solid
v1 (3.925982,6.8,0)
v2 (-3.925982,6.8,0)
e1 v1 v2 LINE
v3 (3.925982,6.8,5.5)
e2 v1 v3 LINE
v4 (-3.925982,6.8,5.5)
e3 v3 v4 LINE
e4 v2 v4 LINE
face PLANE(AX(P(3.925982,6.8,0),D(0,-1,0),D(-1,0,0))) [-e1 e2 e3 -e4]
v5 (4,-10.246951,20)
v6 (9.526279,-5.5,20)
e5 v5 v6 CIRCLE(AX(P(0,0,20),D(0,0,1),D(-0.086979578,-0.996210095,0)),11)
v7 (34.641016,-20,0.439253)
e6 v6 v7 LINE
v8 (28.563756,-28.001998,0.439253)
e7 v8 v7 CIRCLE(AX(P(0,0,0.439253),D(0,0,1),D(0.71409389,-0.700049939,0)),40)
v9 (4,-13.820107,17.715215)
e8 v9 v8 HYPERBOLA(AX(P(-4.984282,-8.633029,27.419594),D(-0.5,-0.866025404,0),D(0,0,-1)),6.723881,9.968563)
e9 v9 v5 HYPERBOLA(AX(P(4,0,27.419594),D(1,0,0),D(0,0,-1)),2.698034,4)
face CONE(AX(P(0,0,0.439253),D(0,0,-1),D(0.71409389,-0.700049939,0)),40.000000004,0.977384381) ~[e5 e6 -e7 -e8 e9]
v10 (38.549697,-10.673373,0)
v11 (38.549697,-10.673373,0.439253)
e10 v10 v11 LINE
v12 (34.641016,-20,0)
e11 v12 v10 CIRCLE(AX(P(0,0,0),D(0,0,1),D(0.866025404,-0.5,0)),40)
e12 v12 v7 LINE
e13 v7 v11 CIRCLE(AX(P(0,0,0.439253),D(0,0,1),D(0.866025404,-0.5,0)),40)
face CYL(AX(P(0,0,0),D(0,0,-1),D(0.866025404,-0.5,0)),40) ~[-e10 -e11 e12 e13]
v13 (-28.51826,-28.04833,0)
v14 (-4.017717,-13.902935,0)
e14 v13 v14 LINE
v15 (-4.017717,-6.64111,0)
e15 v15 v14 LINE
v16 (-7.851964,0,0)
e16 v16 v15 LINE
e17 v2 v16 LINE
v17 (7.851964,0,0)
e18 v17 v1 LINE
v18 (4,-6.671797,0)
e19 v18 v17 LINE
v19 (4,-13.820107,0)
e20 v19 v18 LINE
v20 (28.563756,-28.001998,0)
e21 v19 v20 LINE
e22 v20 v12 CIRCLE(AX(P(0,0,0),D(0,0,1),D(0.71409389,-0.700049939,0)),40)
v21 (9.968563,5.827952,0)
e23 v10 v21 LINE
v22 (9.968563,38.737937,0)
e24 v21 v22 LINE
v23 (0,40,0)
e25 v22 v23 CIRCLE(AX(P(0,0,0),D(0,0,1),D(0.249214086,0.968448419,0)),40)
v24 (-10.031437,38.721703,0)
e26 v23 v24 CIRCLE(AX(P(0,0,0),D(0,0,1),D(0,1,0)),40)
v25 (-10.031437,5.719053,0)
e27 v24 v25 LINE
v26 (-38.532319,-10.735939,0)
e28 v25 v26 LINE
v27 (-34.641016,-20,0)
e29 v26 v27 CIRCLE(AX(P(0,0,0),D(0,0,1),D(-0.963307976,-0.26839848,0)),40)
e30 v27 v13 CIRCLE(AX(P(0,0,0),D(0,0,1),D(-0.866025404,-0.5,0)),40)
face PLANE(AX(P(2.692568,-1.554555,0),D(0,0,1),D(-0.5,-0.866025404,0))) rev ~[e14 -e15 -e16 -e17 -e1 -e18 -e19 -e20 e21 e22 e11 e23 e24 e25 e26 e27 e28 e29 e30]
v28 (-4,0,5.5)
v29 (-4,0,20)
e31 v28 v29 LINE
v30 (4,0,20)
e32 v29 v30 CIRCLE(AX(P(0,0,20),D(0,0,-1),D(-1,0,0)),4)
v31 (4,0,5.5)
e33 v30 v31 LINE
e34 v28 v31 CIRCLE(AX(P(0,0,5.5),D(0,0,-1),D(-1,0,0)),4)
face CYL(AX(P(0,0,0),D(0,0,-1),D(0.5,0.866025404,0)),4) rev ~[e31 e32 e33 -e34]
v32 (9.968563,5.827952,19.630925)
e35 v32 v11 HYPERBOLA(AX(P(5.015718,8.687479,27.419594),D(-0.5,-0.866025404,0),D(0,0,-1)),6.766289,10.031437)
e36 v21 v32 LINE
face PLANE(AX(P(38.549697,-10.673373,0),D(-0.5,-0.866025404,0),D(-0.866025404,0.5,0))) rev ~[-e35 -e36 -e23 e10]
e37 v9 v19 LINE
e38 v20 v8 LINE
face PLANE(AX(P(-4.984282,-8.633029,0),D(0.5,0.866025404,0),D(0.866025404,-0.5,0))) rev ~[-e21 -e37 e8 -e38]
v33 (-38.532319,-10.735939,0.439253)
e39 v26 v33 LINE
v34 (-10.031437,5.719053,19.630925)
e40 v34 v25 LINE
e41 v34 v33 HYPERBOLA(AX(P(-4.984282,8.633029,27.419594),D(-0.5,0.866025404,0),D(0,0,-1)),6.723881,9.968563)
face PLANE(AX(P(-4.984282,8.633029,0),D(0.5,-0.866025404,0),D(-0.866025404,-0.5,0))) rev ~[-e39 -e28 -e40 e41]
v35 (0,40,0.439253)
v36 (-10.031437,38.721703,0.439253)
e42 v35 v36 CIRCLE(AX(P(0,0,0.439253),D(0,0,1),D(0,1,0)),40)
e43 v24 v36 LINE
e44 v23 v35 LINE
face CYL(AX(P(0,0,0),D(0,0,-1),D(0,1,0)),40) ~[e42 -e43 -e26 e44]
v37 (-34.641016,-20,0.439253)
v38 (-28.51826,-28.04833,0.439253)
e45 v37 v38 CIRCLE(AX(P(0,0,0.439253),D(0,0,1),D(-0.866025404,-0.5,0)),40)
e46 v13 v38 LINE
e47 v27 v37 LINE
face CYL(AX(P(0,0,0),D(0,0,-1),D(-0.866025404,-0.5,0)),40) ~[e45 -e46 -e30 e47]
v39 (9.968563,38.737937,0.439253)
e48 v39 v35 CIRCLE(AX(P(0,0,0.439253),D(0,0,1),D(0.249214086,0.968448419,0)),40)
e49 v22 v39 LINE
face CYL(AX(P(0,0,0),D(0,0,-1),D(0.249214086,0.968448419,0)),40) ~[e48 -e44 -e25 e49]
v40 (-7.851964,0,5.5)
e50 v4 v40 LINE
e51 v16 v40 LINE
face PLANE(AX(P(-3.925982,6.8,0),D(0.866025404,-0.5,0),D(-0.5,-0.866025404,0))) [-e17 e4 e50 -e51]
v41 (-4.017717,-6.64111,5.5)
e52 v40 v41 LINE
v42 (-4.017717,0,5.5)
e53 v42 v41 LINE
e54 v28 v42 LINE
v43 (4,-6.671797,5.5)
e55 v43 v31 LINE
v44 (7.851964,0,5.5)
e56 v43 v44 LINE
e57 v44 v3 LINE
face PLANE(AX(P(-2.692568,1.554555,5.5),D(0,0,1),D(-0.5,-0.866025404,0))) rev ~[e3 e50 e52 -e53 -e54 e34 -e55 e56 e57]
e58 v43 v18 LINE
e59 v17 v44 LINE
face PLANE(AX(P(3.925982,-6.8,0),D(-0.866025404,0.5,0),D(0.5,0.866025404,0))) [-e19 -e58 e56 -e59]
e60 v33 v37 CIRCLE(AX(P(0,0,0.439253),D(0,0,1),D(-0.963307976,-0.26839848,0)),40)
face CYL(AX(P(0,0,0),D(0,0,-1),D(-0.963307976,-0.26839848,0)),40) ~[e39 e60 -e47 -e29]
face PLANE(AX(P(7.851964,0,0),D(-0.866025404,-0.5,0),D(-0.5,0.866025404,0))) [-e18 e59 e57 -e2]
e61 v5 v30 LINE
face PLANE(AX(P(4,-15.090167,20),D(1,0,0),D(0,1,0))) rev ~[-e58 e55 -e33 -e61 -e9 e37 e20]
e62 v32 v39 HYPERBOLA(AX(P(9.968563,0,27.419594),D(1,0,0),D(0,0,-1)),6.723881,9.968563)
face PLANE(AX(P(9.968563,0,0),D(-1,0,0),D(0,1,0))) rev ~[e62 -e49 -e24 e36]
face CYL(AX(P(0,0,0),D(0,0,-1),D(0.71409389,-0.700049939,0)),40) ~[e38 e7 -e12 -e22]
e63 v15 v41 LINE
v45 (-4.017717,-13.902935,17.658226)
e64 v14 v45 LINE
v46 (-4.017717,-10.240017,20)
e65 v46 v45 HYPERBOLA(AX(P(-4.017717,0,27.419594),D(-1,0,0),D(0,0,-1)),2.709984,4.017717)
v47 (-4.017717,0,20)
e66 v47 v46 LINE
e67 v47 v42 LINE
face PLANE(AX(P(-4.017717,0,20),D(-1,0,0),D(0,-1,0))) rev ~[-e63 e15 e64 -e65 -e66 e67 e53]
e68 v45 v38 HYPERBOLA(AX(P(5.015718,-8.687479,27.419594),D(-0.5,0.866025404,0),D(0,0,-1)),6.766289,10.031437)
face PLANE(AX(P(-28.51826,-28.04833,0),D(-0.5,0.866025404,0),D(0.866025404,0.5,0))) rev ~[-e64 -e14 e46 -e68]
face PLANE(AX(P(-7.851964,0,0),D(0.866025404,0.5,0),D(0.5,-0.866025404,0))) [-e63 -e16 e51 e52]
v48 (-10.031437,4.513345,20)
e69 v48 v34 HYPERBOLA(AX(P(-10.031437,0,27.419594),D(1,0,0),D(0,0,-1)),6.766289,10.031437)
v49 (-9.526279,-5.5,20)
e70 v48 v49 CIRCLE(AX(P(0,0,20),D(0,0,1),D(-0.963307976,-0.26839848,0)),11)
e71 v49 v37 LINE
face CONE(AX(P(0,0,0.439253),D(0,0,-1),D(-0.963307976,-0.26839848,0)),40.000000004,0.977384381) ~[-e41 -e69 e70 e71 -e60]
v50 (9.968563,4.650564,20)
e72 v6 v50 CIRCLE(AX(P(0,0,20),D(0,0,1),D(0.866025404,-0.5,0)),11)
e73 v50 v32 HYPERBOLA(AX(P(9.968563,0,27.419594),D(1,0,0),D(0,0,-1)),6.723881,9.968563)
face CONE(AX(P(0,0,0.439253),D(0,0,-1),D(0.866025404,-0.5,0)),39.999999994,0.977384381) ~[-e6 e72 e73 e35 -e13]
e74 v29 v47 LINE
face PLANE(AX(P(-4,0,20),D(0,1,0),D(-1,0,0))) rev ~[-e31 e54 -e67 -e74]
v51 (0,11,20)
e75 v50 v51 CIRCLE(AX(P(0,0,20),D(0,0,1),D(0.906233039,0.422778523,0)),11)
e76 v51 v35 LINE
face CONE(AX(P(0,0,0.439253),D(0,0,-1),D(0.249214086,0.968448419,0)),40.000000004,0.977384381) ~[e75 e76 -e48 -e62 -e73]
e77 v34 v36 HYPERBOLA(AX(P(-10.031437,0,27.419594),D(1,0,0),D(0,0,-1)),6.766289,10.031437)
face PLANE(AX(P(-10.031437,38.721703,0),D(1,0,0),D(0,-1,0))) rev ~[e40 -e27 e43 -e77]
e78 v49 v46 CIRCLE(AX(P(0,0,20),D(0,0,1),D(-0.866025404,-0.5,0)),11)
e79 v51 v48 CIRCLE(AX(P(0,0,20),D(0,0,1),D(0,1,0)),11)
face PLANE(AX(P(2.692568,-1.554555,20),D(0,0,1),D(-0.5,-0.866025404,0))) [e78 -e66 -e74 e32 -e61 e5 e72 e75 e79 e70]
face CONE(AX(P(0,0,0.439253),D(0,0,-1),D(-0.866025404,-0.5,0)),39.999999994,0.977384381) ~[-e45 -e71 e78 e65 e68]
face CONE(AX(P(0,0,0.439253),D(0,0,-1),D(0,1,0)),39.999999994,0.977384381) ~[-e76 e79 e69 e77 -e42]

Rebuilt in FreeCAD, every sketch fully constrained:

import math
import FreeCAD as App
import Part
import Sketcher
from FreeCAD import Vector
Q = App.Units.Quantity


def edges_at(feature, points):
    """Names of the edges that pass closest to the given points."""
    edges = feature.Shape.Edges
    near = lambda p: min(range(len(edges)), key=lambda i: edges[i].distToShape(Part.Vertex(*p))[0])
    return sorted({f"Edge{near(p) + 1}" for p in points})

doc = App.newDocument("Part")
params = doc.addObject("Spreadsheet::Sheet", "Params")
for row, (alias, value) in enumerate([
    ("sketch1_radius", "4 mm"),
    ("sketch1_radius2", "40 mm"),
    ("pad1_length", "20 mm"),
    ("sketch2_diameter", "8 mm"),
    ("pocket1_length", "5.5 mm"),
    ("chamfer_size", "29 mm"),
    ("chamfer_size2", "19.560747 mm"),
    ("sketch3_radius", "4 mm"),
], start=1):
    params.set(f"A{row}", alias)
    params.set(f"B{row}", "=" + value)
    params.setAlias(f"B{row}", alias)

body = doc.addObject("PartDesign::Body", "Body")

# Sketch on XY plane
sketch1 = doc.addObject("Sketcher::SketchObject", "Sketch")
body.addObject(sketch1)
sketch1.AttachmentSupport = (doc.XY_Plane, [""])
sketch1.MapMode = "FlatFace"
sketch1.addGeometry(Part.ArcOfCircle(Part.Circle(Vector(0, 0, 0), Vector(0, 0, 1), 4), math.radians(0), math.radians(180)), False)
sketch1.addGeometry(Part.LineSegment(Vector(4, 0, 0), Vector(10, 0, 0)), False)
sketch1.addGeometry(Part.LineSegment(Vector(10, 0, 0), Vector(10, 38.7, 0)), False)
sketch1.addGeometry(Part.ArcOfCircle(Part.Circle(Vector(0, 0, 0), Vector(0, 0, 1), 40), math.radians(75.57), math.radians(90)), False)
sketch1.addGeometry(Part.ArcOfCircle(Part.Circle(Vector(0, 0, 0), Vector(0, 0, 1), 40), math.radians(90), math.radians(104.52)), False)
sketch1.addGeometry(Part.LineSegment(Vector(-10, 38.7, 0), Vector(-10, 0, 0)), False)
sketch1.addGeometry(Part.LineSegment(Vector(-10, 0, 0), Vector(-4, 0, 0)), False)
sketch1.addConstraint(Sketcher.Constraint("Coincident", 0, 1, 1, 1))
sketch1.addConstraint(Sketcher.Constraint("Coincident", 1, 2, 2, 1))
sketch1.addConstraint(Sketcher.Constraint("Coincident", 2, 2, 3, 1))
sketch1.addConstraint(Sketcher.Constraint("Tangent", 3, 2, 4, 1))
sketch1.addConstraint(Sketcher.Constraint("Coincident", 4, 2, 5, 1))
sketch1.addConstraint(Sketcher.Constraint("Coincident", 5, 2, 6, 1))
sketch1.addConstraint(Sketcher.Constraint("Coincident", 6, 2, 0, 2))
sketch1.addConstraint(Sketcher.Constraint("Horizontal", 1))
sketch1.addConstraint(Sketcher.Constraint("Vertical", 2))
sketch1.addConstraint(Sketcher.Constraint("Vertical", 5))
sketch1.addConstraint(Sketcher.Constraint("Horizontal", 6))
sketch1.addConstraint(Sketcher.Constraint("Coincident", 0, 3, -1, 1))
sketch1.addConstraint(Sketcher.Constraint("Coincident", 3, 3, -1, 1))
sketch1.addConstraint(Sketcher.Constraint("Equal", 3, 4))
sketch1.addConstraint(Sketcher.Constraint("PointOnObject", 0, 1, -1))
sketch1.addConstraint(Sketcher.Constraint("PointOnObject", 3, 2, -2))
sketch1.addConstraint(Sketcher.Constraint("PointOnObject", 5, 2, -1))
sketch1.addConstraint(Sketcher.Constraint("Radius", 0, Q("4 mm")))
sketch1.addConstraint(Sketcher.Constraint("Radius", 3, Q("40 mm")))
sketch1.addConstraint(Sketcher.Constraint("DistanceX", 4, 2, 2, 2, Q("20 mm")))
sketch1.addConstraint(Sketcher.Constraint("DistanceX", 1, 1, 1, 2, Q("5.968563 mm")))
sketch1.setExpression("Constraints[17]", "Params.sketch1_radius")
sketch1.setExpression("Constraints[18]", "Params.sketch1_radius2")
pad1 = doc.addObject("PartDesign::Pad", "Pad")
body.addObject(pad1)
pad1.Profile = sketch1
pad1.setExpression("Length", "Params.pad1_length")

# Sketch on XY plane
sketch2 = doc.addObject("Sketcher::SketchObject", "Sketch001")
body.addObject(sketch2)
sketch2.AttachmentSupport = (doc.XY_Plane, [""])
sketch2.MapMode = "FlatFace"
sketch2.addGeometry(Part.LineSegment(Vector(-7.9, 0, 0), Vector(-3.9, -6.8, 0)), False)
sketch2.addGeometry(Part.LineSegment(Vector(-3.9, -6.8, 0), Vector(3.9, -6.8, 0)), False)
sketch2.addGeometry(Part.LineSegment(Vector(3.9, -6.8, 0), Vector(7.9, 0, 0)), False)
sketch2.addGeometry(Part.LineSegment(Vector(7.9, 0, 0), Vector(3.9, 6.8, 0)), False)
sketch2.addGeometry(Part.LineSegment(Vector(3.9, 6.8, 0), Vector(-3.9, 6.8, 0)), False)
sketch2.addGeometry(Part.LineSegment(Vector(-3.9, 6.8, 0), Vector(-7.9, 0, 0)), False)
sketch2.addGeometry(Part.Circle(Vector(0, 0, 0), Vector(0, 0, 1), 4), False)
sketch2.addConstraint(Sketcher.Constraint("Coincident", 0, 2, 1, 1))
sketch2.addConstraint(Sketcher.Constraint("Coincident", 1, 2, 2, 1))
sketch2.addConstraint(Sketcher.Constraint("Coincident", 2, 2, 3, 1))
sketch2.addConstraint(Sketcher.Constraint("Coincident", 3, 2, 4, 1))
sketch2.addConstraint(Sketcher.Constraint("Coincident", 4, 2, 5, 1))
sketch2.addConstraint(Sketcher.Constraint("Coincident", 5, 2, 0, 1))
sketch2.addConstraint(Sketcher.Constraint("Horizontal", 1))
sketch2.addConstraint(Sketcher.Constraint("Horizontal", 4))
sketch2.addConstraint(Sketcher.Constraint("Coincident", 6, 3, -1, 1))
sketch2.addConstraint(Sketcher.Constraint("Symmetric", 0, 2, 3, 2, -1, 1))
sketch2.addConstraint(Sketcher.Constraint("Symmetric", 2, 2, 5, 2, -1, 1))
sketch2.addConstraint(Sketcher.Constraint("PointOnObject", 2, 2, -1))
sketch2.addConstraint(Sketcher.Constraint("Parallel", 2, 5))
sketch2.addConstraint(Sketcher.Constraint("Vertical", 1, 2, 3, 2))
sketch2.addConstraint(Sketcher.Constraint("Diameter", 6, Q("8 mm")))
sketch2.addConstraint(Sketcher.Constraint("Angle", 0, Q("-60 deg")))
sketch2.addConstraint(Sketcher.Constraint("DistanceY", 0, 2, -1, 1, Q("6.8 mm")))
sketch2.addConstraint(Sketcher.Constraint("DistanceX", 1, 1, 1, 2, Q("7.851964 mm")))
sketch2.setExpression("Constraints[14]", "Params.sketch2_diameter")
pocket1 = doc.addObject("PartDesign::Pocket", "Pocket")
body.addObject(pocket1)
pocket1.Profile = sketch2
pocket1.setExpression("Length", "Params.pocket1_length")
pocket1.Reversed = True
doc.recompute()

chamfer = doc.addObject("PartDesign::Chamfer", "Chamfer")
body.addObject(chamfer)
chamfer.Base = (pocket1, edges_at(pocket1, [(-5.056, 39.679, 20)]))
chamfer.ChamferType = "Two distances"
chamfer.setExpression("Size", "Params.chamfer_size")
chamfer.setExpression("Size2", "Params.chamfer_size2")
body2 = doc.addObject("PartDesign::Body", "Body001")
doc.recompute()

body2.BaseFeature = body
doc.recompute()

body3 = doc.addObject("PartDesign::Body", "Body002")
body3.BaseFeature = body
body3.Placement = App.Placement(Vector(0, 0, 0), App.Rotation(Vector(0, 0, -1), 120))
boolean = doc.addObject("PartDesign::Boolean", "Boolean")
body2.addObject(boolean)
boolean.Type = "Fuse"
boolean.addObjects([body3])
doc.recompute()

body.Placement = App.Placement(Vector(0, 0, 0), App.Rotation(Vector(0, 0, -1), 240))
boolean2 = doc.addObject("PartDesign::Boolean", "Boolean001")
body2.addObject(boolean2)
boolean2.Type = "Fuse"
boolean2.addObjects([body])

# Sketch on XY plane
sketch3 = doc.addObject("Sketcher::SketchObject", "Sketch002")
body2.addObject(sketch3)
sketch3.AttachmentSupport = (doc.getObject("XY_Plane001"), [""])
sketch3.MapMode = "FlatFace"
sketch3.AttachmentOffset = App.Placement(Vector(0, 0, 20), App.Rotation())
sketch3.addGeometry(Part.ArcOfCircle(Part.Circle(Vector(0, 0, 0), Vector(0, 0, 1), 4), math.radians(180), math.radians(360)), False)
sketch3.addGeometry(Part.LineSegment(Vector(-4, 0, 0), Vector(-4.018, 0, 0)), False)
sketch3.addGeometry(Part.LineSegment(Vector(-4.018, 0, 0), Vector(-4.018, -15.09, 0)), False)
sketch3.addGeometry(Part.LineSegment(Vector(-4.018, -15.09, 0), Vector(4, -15.09, 0)), False)
sketch3.addGeometry(Part.LineSegment(Vector(4, -15.09, 0), Vector(4, 0, 0)), False)
sketch3.addConstraint(Sketcher.Constraint("Coincident", 0, 1, 1, 1))
sketch3.addConstraint(Sketcher.Constraint("Coincident", 1, 2, 2, 1))
sketch3.addConstraint(Sketcher.Constraint("Coincident", 2, 2, 3, 1))
sketch3.addConstraint(Sketcher.Constraint("Coincident", 3, 2, 4, 1))
sketch3.addConstraint(Sketcher.Constraint("Tangent", 4, 2, 0, 2))
sketch3.addConstraint(Sketcher.Constraint("Horizontal", 1))
sketch3.addConstraint(Sketcher.Constraint("Vertical", 2))
sketch3.addConstraint(Sketcher.Constraint("Horizontal", 3))
sketch3.addConstraint(Sketcher.Constraint("Vertical", 4))
sketch3.addConstraint(Sketcher.Constraint("Coincident", 0, 3, -1, 1))
sketch3.addConstraint(Sketcher.Constraint("PointOnObject", 0, 1, -1))
sketch3.addConstraint(Sketcher.Constraint("Radius", 0, Q("4 mm")))
sketch3.addConstraint(Sketcher.Constraint("DistanceX", 1, 2, 1, 1, Q("0.017717 mm")))
sketch3.addConstraint(Sketcher.Constraint("DistanceY", 2, 2, 2, 1, Q("15.090167 mm")))
sketch3.setExpression("Constraints[11]", "Params.sketch3_radius")
pocket2 = doc.addObject("PartDesign::Pocket", "Pocket001")
body2.addObject(pocket2)
pocket2.Profile = sketch3
pocket2.Type = "ThroughAll"

doc.recompute()
